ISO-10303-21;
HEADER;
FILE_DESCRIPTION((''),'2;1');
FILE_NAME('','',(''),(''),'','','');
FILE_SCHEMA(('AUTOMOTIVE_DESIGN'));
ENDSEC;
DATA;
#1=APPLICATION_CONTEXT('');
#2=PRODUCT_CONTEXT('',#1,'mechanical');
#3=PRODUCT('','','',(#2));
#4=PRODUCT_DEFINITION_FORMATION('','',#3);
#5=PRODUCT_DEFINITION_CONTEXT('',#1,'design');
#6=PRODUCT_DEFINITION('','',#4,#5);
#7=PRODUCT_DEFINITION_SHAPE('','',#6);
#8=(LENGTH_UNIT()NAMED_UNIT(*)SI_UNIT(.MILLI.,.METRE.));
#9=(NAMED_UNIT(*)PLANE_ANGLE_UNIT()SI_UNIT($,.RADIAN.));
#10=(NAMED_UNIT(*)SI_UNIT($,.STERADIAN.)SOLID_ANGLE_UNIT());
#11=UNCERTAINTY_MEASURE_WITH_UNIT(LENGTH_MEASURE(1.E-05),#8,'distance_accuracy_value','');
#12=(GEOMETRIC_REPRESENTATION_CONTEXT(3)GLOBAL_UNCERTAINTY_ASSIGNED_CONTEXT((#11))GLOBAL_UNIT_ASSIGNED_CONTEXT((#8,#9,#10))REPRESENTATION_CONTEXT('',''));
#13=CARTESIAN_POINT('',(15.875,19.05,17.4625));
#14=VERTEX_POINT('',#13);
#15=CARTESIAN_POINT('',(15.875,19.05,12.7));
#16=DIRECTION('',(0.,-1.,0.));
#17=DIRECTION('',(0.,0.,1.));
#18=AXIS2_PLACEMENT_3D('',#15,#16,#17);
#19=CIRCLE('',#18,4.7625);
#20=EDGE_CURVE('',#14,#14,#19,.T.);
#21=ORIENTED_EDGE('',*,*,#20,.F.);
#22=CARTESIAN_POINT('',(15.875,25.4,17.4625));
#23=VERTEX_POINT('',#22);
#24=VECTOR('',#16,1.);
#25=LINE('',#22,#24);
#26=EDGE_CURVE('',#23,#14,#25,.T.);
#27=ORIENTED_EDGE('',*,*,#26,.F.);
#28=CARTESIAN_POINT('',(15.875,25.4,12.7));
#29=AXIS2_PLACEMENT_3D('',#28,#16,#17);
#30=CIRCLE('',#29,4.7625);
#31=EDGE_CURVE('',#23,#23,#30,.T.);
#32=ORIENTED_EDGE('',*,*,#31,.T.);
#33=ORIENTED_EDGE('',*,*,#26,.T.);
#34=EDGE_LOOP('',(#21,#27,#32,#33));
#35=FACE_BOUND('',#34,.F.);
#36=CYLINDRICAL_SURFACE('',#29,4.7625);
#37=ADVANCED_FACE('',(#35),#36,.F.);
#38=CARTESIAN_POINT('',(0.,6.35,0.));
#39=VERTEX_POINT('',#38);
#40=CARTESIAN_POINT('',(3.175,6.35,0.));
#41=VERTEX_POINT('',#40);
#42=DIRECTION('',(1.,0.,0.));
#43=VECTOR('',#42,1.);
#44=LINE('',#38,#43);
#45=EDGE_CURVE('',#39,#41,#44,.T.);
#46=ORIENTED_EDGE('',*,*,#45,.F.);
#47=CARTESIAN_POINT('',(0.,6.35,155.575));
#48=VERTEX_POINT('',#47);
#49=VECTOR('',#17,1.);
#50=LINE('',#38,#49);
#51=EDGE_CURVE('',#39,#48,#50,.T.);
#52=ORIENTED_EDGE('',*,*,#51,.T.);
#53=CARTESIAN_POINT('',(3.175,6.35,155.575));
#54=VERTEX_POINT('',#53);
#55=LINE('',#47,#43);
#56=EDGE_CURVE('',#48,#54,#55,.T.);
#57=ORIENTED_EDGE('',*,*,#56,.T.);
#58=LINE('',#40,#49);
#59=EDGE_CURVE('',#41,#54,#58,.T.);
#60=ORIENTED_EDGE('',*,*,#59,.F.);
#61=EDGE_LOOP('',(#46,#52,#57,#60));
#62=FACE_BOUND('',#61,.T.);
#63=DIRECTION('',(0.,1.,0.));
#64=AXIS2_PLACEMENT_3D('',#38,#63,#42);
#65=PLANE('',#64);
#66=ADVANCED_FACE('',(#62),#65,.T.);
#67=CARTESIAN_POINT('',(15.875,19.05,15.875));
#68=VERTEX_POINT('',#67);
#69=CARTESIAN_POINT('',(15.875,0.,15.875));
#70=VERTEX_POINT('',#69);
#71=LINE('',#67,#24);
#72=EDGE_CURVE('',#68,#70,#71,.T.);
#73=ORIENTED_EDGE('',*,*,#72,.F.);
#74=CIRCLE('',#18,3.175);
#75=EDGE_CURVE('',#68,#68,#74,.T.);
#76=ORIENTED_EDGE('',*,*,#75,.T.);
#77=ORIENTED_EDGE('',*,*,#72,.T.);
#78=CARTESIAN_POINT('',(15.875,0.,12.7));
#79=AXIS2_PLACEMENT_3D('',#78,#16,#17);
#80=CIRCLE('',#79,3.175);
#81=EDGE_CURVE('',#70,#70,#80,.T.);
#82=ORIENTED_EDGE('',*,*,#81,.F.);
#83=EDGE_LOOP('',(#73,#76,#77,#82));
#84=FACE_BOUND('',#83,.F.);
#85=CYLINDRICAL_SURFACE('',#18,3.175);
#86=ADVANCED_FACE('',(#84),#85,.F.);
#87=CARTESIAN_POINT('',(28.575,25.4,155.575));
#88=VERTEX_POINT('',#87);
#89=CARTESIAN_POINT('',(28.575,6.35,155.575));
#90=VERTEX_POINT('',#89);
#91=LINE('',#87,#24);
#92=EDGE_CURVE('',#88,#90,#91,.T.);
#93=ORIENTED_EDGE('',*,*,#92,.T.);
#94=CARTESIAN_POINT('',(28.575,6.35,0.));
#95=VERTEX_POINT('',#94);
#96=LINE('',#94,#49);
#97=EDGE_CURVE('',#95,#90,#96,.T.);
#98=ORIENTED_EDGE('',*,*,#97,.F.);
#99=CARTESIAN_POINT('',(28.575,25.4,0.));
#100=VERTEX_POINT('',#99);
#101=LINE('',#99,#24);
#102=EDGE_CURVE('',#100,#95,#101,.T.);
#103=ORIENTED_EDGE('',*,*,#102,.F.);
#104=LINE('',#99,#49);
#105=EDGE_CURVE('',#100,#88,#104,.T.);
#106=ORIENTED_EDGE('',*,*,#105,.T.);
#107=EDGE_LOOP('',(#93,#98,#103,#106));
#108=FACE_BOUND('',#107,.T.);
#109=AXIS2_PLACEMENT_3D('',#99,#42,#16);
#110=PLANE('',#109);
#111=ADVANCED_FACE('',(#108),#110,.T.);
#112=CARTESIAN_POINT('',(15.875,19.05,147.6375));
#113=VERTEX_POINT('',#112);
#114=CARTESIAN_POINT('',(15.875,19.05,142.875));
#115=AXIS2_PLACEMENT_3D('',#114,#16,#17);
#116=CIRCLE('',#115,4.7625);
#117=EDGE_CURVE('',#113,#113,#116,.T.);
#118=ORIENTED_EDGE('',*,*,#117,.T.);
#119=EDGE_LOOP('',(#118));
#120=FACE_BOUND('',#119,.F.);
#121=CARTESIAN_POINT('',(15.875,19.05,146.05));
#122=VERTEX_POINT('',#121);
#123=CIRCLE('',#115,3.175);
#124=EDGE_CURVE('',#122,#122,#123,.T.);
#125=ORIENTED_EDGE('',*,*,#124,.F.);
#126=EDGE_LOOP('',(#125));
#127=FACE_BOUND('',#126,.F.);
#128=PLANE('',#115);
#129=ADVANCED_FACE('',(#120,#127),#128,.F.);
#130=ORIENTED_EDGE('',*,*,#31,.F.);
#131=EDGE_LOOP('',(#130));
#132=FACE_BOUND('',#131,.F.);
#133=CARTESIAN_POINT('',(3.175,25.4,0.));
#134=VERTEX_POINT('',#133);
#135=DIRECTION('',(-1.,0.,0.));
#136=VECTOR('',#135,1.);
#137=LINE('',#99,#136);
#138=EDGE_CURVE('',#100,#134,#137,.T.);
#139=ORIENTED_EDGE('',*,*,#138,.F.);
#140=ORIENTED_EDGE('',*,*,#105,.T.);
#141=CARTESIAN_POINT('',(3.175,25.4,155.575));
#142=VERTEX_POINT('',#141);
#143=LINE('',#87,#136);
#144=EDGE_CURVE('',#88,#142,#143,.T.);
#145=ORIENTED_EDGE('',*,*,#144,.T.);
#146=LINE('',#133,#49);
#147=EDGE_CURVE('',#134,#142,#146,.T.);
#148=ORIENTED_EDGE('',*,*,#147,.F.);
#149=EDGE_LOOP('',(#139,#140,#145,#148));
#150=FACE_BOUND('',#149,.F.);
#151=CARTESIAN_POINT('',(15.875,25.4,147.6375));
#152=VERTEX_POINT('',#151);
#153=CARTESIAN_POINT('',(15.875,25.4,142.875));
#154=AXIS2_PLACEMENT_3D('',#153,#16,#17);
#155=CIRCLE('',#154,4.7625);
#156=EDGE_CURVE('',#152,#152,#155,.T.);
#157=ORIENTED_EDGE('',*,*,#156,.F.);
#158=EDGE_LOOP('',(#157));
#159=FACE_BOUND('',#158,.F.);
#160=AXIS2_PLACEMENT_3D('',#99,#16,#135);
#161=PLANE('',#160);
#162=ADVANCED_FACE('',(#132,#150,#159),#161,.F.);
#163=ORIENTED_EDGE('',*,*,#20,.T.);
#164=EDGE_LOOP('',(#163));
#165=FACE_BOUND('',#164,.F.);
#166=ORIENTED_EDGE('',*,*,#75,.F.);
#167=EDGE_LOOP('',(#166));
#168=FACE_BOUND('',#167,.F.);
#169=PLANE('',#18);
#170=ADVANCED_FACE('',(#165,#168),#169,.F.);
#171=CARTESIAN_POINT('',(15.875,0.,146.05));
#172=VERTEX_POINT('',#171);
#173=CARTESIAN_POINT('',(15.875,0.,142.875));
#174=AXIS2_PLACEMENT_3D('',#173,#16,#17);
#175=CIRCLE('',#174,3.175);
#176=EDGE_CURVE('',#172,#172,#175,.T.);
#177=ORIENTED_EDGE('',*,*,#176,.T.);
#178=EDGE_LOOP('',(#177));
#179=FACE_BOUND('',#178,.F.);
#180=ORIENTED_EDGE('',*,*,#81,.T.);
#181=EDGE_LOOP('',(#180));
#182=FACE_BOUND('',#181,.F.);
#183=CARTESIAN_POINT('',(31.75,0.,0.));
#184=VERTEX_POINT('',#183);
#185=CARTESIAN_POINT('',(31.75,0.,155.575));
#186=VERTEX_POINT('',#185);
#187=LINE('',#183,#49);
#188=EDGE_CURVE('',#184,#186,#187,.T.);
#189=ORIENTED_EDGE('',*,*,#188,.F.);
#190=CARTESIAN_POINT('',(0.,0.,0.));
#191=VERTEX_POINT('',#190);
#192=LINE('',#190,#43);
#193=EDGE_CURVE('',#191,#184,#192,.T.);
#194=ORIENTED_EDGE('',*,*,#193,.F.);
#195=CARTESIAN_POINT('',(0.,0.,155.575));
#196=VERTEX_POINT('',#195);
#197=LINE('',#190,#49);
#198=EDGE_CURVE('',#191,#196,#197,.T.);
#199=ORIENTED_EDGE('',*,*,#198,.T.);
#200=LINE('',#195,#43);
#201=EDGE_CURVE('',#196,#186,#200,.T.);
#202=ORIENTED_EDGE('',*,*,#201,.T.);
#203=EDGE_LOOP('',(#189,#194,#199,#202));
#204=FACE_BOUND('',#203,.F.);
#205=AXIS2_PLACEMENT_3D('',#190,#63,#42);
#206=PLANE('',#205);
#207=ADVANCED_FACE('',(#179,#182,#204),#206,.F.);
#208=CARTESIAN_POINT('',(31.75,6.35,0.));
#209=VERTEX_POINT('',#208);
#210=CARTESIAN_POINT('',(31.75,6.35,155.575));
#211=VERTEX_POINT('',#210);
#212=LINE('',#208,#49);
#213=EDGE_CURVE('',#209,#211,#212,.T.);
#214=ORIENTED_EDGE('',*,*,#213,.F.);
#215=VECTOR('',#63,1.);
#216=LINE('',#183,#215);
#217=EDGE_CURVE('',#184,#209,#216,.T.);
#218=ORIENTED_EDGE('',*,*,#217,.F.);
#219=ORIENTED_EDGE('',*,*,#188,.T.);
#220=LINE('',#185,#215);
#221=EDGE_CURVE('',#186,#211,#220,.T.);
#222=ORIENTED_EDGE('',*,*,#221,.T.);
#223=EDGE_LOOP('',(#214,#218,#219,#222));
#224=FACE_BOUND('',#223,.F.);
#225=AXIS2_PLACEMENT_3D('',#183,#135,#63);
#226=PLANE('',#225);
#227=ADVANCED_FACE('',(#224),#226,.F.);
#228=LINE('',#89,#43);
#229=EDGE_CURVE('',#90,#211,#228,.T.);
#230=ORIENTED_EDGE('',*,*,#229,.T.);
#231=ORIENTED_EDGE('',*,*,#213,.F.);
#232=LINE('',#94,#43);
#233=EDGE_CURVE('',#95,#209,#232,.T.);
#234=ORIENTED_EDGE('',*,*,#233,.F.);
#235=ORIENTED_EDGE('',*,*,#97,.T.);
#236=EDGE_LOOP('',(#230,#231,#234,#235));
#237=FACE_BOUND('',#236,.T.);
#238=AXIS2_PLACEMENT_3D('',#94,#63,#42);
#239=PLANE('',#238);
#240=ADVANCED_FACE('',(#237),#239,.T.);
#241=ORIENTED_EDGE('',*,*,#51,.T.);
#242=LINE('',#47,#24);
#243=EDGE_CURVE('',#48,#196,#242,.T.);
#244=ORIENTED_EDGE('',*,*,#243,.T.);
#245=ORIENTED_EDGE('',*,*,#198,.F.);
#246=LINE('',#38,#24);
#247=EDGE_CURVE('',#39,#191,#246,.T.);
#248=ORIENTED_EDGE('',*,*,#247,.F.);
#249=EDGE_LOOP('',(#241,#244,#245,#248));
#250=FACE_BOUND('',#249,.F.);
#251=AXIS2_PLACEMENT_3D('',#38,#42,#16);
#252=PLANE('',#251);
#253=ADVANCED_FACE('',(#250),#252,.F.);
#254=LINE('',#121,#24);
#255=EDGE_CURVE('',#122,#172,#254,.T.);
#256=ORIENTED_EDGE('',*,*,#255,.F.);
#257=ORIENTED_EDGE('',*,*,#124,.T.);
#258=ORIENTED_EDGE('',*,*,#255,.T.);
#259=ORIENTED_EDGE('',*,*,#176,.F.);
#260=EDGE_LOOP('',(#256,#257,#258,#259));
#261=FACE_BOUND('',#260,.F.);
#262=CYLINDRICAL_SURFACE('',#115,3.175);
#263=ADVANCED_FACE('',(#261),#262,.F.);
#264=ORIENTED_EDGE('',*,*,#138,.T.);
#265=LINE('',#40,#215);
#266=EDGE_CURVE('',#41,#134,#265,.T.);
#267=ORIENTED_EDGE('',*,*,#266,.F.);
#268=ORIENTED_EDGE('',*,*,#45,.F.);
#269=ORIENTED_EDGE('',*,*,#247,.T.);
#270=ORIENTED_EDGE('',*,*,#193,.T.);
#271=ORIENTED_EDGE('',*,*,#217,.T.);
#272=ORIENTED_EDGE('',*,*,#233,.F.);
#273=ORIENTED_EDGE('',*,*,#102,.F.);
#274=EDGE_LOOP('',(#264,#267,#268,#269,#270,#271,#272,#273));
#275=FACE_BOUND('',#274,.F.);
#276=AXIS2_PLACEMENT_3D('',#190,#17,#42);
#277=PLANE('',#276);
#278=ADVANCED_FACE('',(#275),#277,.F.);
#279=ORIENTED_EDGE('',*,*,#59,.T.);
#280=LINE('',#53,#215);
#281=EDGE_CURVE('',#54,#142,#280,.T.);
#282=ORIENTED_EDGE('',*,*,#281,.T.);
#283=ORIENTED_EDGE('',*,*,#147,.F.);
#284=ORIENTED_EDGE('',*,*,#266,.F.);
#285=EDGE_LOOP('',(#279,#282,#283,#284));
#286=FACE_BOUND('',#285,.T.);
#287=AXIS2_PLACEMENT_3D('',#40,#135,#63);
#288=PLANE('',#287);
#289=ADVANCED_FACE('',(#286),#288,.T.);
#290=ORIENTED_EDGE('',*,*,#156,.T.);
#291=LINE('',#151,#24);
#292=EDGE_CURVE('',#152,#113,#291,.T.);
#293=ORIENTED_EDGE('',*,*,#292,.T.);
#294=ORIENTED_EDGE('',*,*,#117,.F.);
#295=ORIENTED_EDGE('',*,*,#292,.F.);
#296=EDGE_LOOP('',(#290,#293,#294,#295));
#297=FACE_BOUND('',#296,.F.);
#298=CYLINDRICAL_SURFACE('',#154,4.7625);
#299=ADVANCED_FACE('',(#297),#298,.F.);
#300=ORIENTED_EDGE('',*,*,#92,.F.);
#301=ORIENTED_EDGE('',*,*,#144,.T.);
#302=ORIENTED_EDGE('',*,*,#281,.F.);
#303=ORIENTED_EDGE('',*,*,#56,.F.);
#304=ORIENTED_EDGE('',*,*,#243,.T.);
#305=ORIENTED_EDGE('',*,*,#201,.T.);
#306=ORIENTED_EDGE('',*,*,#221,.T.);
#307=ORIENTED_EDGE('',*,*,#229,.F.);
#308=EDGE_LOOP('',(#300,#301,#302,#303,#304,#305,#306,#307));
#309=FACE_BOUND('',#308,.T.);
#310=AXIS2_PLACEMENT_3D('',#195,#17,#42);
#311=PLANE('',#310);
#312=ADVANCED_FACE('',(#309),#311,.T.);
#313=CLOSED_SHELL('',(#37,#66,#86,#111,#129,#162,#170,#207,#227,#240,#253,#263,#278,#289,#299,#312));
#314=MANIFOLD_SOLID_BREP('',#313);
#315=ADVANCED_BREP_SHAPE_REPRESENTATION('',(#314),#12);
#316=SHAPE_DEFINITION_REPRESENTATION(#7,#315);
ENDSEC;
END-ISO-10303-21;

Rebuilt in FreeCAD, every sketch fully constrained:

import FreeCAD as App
import Part
import Sketcher
Q = App.Units.Quantity

doc = App.newDocument("Part")
params = doc.addObject("Spreadsheet::Sheet", "Params")
for row, (alias, value) in enumerate([
    ("sketch1_width", "1 in"),
    ("sketch1_width2", "1.25 in"),
    ("sketch1_height", "0.25 in"),
    ("pad1_length", "6.125 in"),
    ("sketch2_diameter", "0.25 in"),
    ("hole_diameter", "0.25 in"),
    ("hole_cbore_diameter", "0.375 in"),
    ("hole_cbore_depth", "0.25 in"),
], start=1):
    params.set(f"A{row}", alias)
    params.set(f"B{row}", "=" + value)
    params.setAlias(f"B{row}", alias)

body = doc.addObject("PartDesign::Body", "Body")

sketch1 = doc.addObject("Sketcher::SketchObject", "Sketch")
body.addObject(sketch1)
sketch1.AttachmentSupport = (doc.XY_Plane, [""])
sketch1.MapMode = "FlatFace"
sketch1.addGeometry(Part.LineSegment(App.Vector(0, 6.3, 0), App.Vector(0, 0, 0)), False)
sketch1.addGeometry(Part.LineSegment(App.Vector(0, 0, 0), App.Vector(31.8, 0, 0)), False)
sketch1.addGeometry(Part.LineSegment(App.Vector(31.8, 0, 0), App.Vector(31.8, 6.3, 0)), False)
sketch1.addGeometry(Part.LineSegment(App.Vector(31.8, 6.3, 0), App.Vector(28.6, 6.3, 0)), False)
sketch1.addGeometry(Part.LineSegment(App.Vector(28.6, 6.3, 0), App.Vector(28.6, 25.4, 0)), False)
sketch1.addGeometry(Part.LineSegment(App.Vector(28.6, 25.4, 0), App.Vector(3.2, 25.4, 0)), False)
sketch1.addGeometry(Part.LineSegment(App.Vector(3.2, 25.4, 0), App.Vector(3.2, 6.3, 0)), False)
sketch1.addGeometry(Part.LineSegment(App.Vector(3.2, 6.3, 0), App.Vector(0, 6.3, 0)), False)
sketch1.addConstraint(Sketcher.Constraint("Coincident", 0, 2, 1, 1))
sketch1.addConstraint(Sketcher.Constraint("Coincident", 1, 2, 2, 1))
sketch1.addConstraint(Sketcher.Constraint("Coincident", 2, 2, 3, 1))
sketch1.addConstraint(Sketcher.Constraint("Coincident", 3, 2, 4, 1))
sketch1.addConstraint(Sketcher.Constraint("Coincident", 4, 2, 5, 1))
sketch1.addConstraint(Sketcher.Constraint("Coincident", 5, 2, 6, 1))
sketch1.addConstraint(Sketcher.Constraint("Coincident", 6, 2, 7, 1))
sketch1.addConstraint(Sketcher.Constraint("Coincident", 7, 2, 0, 1))
sketch1.addConstraint(Sketcher.Constraint("Vertical", 0))
sketch1.addConstraint(Sketcher.Constraint("Horizontal", 1))
sketch1.addConstraint(Sketcher.Constraint("Vertical", 2))
sketch1.addConstraint(Sketcher.Constraint("Horizontal", 3))
sketch1.addConstraint(Sketcher.Constraint("Vertical", 4))
sketch1.addConstraint(Sketcher.Constraint("Horizontal", 5))
sketch1.addConstraint(Sketcher.Constraint("Vertical", 6))
sketch1.addConstraint(Sketcher.Constraint("Horizontal", 7))
sketch1.addConstraint(Sketcher.Constraint("Coincident", 0, 2, -1, 1))
sketch1.addConstraint(Sketcher.Constraint("Horizontal", 3, 2, 6, 2))
sketch1.addConstraint(Sketcher.Constraint("Equal", 3, 7))
sketch1.addConstraint(Sketcher.Constraint("DistanceX", 5, 2, 5, 1, Q("1 in")))
sketch1.addConstraint(Sketcher.Constraint("DistanceY", -1, 1, 4, 2, Q("1 in")))
sketch1.addConstraint(Sketcher.Constraint("DistanceX", 1, 1, 1, 2, Q("1.25 in")))
sketch1.addConstraint(Sketcher.Constraint("DistanceY", 0, 2, 0, 1, Q("0.25 in")))
sketch1.setExpression("Constraints[19]", "Params.sketch1_width")
sketch1.setExpression("Constraints[21]", "Params.sketch1_width2")
sketch1.setExpression("Constraints[22]", "Params.sketch1_height")
pad1 = doc.addObject("PartDesign::Pad", "Pad")
body.addObject(pad1)
pad1.Profile = sketch1
pad1.setExpression("Length", "Params.pad1_length")

sketch2 = doc.addObject("Sketcher::SketchObject", "Sketch001")
body.addObject(sketch2)
sketch2.AttachmentSupport = (doc.XZ_Plane, [""])
sketch2.MapMode = "FlatFace"
sketch2.AttachmentOffset = App.Placement(App.Vector(0, 0, -1 * 25.4), App.Rotation())
sketch2.addGeometry(Part.Circle(App.Vector(15.9, 142.9, 0), App.Vector(0, 0, 1), 3.2), False)
sketch2.addGeometry(Part.Circle(App.Vector(15.9, 12.7, 0), App.Vector(0, 0, 1), 3.2), False)
sketch2.addConstraint(Sketcher.Constraint("Equal", 0, 1))
sketch2.addConstraint(Sketcher.Constraint("Vertical", 0, 3, 1, 3))
sketch2.addConstraint(Sketcher.Constraint("Diameter", 0, Q("0.25 in")))
sketch2.addConstraint(Sketcher.Constraint("DistanceY", -1, 1, 1, 3, Q("0.5 in")))
sketch2.addConstraint(Sketcher.Constraint("DistanceX", -1, 1, 0, 3, Q("0.625 in")))
sketch2.addConstraint(Sketcher.Constraint("DistanceY", -1, 1, 0, 3, Q("5.625 in")))
sketch2.setExpression("Constraints[2]", "Params.sketch2_diameter")
doc.recompute()
hole = doc.addObject("PartDesign::Hole", "Hole")
body.addObject(hole)
hole.Profile = sketch2
hole.ThreadType = "None"
hole.setExpression("Diameter", "Params.hole_diameter")
hole.DepthType = "ThroughAll"
hole.HoleCutType = "Counterbore"
hole.setExpression("HoleCutDiameter", "Params.hole_cbore_diameter")
hole.setExpression("HoleCutDepth", "Params.hole_cbore_depth")
hole.Reversed = True

doc.recompute()
